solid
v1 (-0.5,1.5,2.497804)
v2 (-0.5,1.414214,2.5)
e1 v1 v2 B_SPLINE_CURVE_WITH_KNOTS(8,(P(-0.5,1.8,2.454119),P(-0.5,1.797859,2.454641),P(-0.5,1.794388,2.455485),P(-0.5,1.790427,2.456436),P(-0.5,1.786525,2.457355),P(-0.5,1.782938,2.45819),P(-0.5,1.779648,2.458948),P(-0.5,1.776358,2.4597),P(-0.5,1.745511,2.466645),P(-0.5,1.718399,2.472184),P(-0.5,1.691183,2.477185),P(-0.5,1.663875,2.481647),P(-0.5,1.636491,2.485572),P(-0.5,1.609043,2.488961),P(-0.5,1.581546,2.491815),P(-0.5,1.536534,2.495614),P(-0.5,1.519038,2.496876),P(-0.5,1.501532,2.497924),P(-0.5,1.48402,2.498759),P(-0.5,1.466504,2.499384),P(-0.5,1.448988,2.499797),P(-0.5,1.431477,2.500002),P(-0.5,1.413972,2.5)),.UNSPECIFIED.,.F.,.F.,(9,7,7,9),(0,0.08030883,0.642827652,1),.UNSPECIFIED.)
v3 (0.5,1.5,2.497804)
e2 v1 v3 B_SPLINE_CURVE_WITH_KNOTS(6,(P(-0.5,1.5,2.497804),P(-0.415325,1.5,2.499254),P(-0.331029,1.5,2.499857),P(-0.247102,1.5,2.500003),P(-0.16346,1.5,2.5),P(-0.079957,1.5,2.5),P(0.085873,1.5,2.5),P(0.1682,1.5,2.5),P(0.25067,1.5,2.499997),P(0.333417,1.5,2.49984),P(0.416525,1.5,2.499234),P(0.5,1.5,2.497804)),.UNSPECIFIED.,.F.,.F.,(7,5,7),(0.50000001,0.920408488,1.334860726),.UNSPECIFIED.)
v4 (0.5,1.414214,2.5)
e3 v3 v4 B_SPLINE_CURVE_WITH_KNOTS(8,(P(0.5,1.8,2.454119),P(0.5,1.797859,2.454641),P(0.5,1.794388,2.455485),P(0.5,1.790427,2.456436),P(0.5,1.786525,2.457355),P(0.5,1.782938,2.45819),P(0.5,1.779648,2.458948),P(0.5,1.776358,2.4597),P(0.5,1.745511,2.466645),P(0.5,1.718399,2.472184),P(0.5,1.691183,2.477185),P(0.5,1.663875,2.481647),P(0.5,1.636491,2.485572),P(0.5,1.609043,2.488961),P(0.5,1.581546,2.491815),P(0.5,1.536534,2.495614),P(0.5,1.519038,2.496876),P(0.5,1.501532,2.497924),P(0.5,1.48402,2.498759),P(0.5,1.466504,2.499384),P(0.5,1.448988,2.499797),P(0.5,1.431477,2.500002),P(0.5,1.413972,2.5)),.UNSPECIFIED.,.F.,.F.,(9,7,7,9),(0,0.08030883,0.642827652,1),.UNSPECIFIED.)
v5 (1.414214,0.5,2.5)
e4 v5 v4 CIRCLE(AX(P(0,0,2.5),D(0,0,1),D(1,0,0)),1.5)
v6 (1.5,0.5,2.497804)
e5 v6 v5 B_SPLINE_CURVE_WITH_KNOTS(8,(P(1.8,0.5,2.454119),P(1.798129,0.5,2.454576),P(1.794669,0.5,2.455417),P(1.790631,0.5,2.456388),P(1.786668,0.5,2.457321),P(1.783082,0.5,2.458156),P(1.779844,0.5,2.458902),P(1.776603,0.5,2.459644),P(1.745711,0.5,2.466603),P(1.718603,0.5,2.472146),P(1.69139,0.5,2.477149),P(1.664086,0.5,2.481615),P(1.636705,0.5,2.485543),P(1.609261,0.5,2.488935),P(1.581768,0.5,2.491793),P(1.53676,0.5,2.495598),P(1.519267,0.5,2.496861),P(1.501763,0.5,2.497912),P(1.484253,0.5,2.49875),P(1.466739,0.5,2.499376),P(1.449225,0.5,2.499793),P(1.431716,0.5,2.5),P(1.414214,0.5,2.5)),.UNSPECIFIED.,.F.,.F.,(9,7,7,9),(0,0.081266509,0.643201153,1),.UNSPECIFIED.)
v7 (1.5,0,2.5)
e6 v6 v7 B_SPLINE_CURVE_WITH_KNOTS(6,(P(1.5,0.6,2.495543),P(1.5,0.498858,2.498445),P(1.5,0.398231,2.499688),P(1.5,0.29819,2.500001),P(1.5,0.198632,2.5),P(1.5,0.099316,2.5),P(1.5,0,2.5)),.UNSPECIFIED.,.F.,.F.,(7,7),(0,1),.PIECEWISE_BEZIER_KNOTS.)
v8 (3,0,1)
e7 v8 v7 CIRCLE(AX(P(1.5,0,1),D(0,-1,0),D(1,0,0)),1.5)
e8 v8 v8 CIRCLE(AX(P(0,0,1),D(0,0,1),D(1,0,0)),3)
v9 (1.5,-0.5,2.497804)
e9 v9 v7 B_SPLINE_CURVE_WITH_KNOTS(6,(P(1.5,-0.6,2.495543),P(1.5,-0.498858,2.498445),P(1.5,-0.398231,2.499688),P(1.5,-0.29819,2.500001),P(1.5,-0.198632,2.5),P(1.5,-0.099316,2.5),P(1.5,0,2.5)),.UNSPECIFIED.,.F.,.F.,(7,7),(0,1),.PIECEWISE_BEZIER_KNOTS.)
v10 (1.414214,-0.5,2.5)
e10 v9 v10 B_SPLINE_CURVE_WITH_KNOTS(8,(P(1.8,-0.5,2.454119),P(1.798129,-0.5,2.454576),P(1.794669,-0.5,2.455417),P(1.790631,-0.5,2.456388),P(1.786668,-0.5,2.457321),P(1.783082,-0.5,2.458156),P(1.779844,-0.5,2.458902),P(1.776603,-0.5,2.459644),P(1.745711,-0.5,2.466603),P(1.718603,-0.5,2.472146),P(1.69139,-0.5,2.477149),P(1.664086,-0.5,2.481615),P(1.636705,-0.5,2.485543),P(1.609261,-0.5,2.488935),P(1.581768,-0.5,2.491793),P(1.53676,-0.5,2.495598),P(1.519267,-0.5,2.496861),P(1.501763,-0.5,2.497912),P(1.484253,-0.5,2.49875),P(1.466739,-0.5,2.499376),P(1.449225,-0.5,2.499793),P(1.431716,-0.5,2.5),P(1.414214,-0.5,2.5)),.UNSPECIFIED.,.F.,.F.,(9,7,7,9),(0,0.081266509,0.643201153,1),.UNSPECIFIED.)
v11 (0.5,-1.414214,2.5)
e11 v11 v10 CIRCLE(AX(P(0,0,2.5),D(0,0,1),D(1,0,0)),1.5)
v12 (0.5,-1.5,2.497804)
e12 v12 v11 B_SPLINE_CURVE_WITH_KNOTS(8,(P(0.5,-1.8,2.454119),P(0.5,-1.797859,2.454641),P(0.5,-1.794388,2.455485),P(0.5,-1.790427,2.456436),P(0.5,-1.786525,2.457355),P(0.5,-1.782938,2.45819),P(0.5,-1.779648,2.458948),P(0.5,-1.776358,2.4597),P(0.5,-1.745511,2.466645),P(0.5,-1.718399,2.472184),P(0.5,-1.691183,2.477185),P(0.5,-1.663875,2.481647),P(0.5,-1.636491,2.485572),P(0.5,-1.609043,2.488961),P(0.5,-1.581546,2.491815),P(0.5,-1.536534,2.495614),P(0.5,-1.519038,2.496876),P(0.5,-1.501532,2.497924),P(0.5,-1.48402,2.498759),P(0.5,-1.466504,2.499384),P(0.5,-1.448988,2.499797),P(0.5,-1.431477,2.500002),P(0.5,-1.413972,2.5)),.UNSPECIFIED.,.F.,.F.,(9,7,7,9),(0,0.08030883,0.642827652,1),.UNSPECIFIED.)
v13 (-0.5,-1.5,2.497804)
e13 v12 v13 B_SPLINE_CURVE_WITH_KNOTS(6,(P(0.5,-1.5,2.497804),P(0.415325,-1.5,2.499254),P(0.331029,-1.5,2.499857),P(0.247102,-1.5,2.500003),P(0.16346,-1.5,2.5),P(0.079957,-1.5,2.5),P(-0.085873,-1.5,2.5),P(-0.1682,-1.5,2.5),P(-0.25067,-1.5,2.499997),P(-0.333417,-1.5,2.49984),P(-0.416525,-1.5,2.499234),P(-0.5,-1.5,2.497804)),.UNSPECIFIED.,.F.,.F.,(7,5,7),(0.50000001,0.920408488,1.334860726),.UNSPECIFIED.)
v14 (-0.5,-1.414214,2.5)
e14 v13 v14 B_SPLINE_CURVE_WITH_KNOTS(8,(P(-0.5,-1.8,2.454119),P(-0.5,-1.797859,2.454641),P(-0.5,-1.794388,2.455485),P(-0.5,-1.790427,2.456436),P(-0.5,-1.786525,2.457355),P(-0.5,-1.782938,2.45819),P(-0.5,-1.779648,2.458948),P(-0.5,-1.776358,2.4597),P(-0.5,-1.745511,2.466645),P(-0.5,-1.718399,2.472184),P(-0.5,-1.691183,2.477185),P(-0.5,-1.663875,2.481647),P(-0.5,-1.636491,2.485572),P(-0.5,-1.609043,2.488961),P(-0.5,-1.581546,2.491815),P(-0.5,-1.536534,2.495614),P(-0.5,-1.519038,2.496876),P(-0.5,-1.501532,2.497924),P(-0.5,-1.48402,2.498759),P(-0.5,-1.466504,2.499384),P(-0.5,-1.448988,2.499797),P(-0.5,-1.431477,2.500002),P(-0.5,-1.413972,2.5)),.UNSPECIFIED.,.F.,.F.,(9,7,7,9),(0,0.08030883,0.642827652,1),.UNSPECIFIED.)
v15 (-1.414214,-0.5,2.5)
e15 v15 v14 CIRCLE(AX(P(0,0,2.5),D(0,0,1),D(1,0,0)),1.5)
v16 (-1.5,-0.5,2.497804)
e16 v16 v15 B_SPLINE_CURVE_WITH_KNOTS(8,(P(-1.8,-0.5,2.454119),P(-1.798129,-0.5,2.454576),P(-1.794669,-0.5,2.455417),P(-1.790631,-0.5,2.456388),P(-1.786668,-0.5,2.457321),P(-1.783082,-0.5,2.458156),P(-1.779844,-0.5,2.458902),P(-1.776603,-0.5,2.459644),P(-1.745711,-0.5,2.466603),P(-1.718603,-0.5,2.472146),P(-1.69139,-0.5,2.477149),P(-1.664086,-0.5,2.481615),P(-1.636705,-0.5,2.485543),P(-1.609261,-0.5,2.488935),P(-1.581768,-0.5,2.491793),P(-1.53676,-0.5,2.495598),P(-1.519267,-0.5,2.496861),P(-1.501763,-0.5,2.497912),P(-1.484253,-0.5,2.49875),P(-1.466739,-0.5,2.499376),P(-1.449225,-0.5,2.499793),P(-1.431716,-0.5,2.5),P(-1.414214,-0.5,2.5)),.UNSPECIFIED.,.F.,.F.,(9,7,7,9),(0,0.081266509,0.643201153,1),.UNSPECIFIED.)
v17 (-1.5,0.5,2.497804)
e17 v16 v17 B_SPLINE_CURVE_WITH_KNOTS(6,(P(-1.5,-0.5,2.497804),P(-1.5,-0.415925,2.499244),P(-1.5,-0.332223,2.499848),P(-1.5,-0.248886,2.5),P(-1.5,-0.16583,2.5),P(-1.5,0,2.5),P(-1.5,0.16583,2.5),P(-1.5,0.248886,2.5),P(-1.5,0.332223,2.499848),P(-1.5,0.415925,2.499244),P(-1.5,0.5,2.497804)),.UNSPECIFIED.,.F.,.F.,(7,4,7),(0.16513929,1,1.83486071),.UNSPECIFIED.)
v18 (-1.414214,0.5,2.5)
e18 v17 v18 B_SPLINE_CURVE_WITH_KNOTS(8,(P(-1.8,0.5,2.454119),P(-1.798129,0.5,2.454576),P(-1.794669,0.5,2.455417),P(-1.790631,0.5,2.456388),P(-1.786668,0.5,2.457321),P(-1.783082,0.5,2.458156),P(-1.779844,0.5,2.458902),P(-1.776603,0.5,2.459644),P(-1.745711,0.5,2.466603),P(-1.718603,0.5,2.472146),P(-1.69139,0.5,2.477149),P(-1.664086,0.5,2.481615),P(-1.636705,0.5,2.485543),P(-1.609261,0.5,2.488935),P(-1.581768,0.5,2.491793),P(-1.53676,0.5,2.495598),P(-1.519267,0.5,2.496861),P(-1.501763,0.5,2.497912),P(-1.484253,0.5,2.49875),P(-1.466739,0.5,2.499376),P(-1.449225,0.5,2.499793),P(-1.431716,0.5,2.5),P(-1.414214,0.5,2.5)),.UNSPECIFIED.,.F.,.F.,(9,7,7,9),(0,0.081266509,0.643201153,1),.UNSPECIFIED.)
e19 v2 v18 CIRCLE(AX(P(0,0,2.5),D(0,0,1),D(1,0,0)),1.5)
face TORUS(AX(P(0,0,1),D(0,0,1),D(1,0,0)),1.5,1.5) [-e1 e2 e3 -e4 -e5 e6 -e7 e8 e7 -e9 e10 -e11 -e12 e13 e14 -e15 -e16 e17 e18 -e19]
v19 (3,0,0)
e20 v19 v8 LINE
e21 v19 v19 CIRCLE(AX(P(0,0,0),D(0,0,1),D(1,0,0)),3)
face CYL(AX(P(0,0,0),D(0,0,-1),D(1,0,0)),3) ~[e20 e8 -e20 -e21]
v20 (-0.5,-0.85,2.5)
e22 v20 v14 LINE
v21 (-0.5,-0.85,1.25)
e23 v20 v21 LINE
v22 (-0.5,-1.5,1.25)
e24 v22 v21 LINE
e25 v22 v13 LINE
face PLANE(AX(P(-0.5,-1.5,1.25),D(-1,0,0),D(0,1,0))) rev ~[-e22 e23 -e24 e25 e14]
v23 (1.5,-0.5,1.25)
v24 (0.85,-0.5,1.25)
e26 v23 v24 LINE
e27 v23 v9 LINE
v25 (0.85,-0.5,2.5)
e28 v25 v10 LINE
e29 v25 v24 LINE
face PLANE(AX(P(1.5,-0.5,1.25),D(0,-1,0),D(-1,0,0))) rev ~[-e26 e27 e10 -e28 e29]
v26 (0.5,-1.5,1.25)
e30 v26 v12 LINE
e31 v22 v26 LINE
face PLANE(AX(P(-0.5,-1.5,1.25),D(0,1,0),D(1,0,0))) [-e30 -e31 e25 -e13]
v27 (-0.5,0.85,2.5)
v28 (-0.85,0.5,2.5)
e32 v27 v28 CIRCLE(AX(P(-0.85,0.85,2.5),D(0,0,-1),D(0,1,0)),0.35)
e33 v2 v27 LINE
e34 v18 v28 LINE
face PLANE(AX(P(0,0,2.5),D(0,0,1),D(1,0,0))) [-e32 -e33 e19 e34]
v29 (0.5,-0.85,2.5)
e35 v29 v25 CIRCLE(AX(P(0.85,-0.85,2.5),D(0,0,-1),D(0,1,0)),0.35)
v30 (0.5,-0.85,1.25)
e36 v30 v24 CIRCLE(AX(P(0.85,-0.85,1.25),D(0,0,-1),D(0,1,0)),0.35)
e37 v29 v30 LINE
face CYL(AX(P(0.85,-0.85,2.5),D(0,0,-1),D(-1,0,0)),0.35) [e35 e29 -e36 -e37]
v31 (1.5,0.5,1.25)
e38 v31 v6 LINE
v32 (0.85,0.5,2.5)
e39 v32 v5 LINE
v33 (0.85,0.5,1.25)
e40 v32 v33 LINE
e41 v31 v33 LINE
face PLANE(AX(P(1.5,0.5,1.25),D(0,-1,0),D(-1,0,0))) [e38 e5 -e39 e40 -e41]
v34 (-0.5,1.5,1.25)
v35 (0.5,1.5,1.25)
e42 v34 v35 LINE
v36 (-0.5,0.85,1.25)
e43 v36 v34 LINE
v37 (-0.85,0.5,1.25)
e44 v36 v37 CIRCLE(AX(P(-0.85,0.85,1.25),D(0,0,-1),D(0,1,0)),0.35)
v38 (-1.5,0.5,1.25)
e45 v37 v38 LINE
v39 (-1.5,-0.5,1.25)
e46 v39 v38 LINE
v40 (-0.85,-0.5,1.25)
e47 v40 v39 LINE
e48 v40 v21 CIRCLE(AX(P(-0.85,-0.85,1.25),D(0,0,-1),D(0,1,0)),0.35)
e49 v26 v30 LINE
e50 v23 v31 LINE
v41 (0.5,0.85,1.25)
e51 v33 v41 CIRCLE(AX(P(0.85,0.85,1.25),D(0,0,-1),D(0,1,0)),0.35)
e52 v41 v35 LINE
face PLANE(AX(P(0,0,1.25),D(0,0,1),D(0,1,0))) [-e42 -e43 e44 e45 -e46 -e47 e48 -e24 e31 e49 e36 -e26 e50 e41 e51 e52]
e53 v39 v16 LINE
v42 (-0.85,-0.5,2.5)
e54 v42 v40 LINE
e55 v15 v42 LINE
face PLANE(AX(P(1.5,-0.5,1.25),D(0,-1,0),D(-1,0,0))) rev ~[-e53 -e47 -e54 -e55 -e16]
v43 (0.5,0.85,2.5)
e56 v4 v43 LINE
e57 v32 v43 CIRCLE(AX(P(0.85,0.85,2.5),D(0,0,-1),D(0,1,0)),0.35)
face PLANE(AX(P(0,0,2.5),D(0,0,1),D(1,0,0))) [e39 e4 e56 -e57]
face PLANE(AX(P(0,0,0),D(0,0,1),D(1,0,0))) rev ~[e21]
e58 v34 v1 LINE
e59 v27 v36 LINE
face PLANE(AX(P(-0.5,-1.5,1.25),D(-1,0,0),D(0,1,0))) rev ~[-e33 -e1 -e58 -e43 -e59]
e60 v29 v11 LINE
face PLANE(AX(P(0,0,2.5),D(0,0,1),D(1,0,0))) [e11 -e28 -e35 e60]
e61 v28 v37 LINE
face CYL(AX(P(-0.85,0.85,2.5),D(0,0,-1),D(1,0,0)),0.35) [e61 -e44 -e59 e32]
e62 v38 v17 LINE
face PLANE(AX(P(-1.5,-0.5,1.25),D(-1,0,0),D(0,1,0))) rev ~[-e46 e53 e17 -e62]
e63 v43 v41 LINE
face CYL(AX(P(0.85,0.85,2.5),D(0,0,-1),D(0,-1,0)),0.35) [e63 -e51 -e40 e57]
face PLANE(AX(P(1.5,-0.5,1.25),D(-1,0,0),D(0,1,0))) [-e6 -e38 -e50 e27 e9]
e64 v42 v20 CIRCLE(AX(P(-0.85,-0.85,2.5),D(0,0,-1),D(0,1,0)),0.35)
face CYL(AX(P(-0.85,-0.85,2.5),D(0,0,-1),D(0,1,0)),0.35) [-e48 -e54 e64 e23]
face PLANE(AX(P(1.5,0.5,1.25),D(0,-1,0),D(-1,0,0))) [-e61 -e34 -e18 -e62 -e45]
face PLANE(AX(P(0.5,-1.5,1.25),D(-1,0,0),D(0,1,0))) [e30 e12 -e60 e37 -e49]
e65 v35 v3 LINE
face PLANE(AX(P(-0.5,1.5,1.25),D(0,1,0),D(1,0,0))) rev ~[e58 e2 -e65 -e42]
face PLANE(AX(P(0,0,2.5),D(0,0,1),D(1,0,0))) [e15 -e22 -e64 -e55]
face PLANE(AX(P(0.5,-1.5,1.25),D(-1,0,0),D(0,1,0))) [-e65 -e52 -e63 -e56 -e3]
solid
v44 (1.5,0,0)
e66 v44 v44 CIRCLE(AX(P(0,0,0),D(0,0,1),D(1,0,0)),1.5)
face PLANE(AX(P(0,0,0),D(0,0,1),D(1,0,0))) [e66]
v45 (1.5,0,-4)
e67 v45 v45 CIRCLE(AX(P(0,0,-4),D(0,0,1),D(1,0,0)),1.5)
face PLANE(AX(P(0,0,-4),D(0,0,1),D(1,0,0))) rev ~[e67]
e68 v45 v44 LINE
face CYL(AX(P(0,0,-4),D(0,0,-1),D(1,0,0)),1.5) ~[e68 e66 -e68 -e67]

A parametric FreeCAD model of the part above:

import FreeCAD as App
import Part
import Sketcher
from FreeCAD import Vector


def edges_at(feature, points):
    """Names of the edges that pass closest to the given points."""
    edges = feature.Shape.Edges
    near = lambda p: min(range(len(edges)), key=lambda i: edges[i].distToShape(Part.Vertex(*p))[0])
    return sorted({f"Edge{near(p) + 1}" for p in points})

doc = App.newDocument("Part")
params = doc.addObject("Spreadsheet::Sheet", "Params")
for row, (alias, value) in enumerate([
    ("sketch1_width", "1 mm"),
    ("sketch1_height", "3 mm"),
    ("pad1_length", "1.5 mm"),
    ("sketch2_width", "3 mm"),
    ("sketch2_height", "1 mm"),
    ("pad2_length", "1.5 mm"),
    ("sketch3_diameter", "6 mm"),
    ("pad3_length", "2.5 mm"),
    ("fillet_radius", "1.5 mm"),
    ("fillet2_radius", "0.35 mm"),
    ("sketch4_diameter", "3 mm"),
    ("pad4_length", "4 mm"),
], start=1):
    params.set(f"A{row}", alias)
    params.set(f"B{row}", "=" + value)
    params.setAlias(f"B{row}", alias)

body = doc.addObject("PartDesign::Body", "Body")

sketch1 = doc.addObject("Sketcher::SketchObject", "Sketch")
body.addObject(sketch1)
sketch1.AttachmentSupport = (doc.XY_Plane, [""])
sketch1.MapMode = "FlatFace"
sketch1.AttachmentOffset = App.Placement(Vector(0, 0, 1.25), App.Rotation())
sketch1.addGeometry([
    Part.LineSegment(Vector(-0.5, 1.5, 0), Vector(-0.5, -1.5, 0)),
    Part.LineSegment(Vector(-0.5, -1.5, 0), Vector(0.5, -1.5, 0)),
    Part.LineSegment(Vector(0.5, -1.5, 0), Vector(0.5, 1.5, 0)),
    Part.LineSegment(Vector(0.5, 1.5, 0), Vector(-0.5, 1.5, 0)),
], False)
sketch1.addConstraint([
    Sketcher.Constraint("Coincident", 0, 2, 1, 1),
    Sketcher.Constraint("Coincident", 1, 2, 2, 1),
    Sketcher.Constraint("Coincident", 2, 2, 3, 1),
    Sketcher.Constraint("Coincident", 3, 2, 0, 1),
    Sketcher.Constraint("Vertical", 0),
    Sketcher.Constraint("Horizontal", 1),
    Sketcher.Constraint("Vertical", 2),
    Sketcher.Constraint("Horizontal", 3),
    Sketcher.Constraint("Symmetric", 0, 2, 2, 2, -1, 1),
    Sketcher.Constraint("DistanceX", 1, 1, 1, 2, 1.0),
    Sketcher.Constraint("DistanceY", 0, 2, 0, 1, 3.0),
])
sketch1.setExpression("Constraints[9]", "Params.sketch1_width")
sketch1.setExpression("Constraints[10]", "Params.sketch1_height")
pad1 = doc.addObject("PartDesign::Pad", "Pad")
body.addObject(pad1)
pad1.Profile = sketch1
pad1.setExpression("Length", "Params.pad1_length")
body2 = doc.addObject("PartDesign::Body", "Body001")

sketch2 = doc.addObject("Sketcher::SketchObject", "Sketch001")
body2.addObject(sketch2)
sketch2.AttachmentSupport = (doc.getObject("XY_Plane001"), [""])
sketch2.MapMode = "FlatFace"
sketch2.AttachmentOffset = App.Placement(Vector(0, 0, 1.25), App.Rotation())
sketch2.addGeometry([
    Part.LineSegment(Vector(-1.5, -0.5, 0), Vector(1.5, -0.5, 0)),
    Part.LineSegment(Vector(1.5, -0.5, 0), Vector(1.5, 0.5, 0)),
    Part.LineSegment(Vector(1.5, 0.5, 0), Vector(-1.5, 0.5, 0)),
    Part.LineSegment(Vector(-1.5, 0.5, 0), Vector(-1.5, -0.5, 0)),
], False)
sketch2.addConstraint([
    Sketcher.Constraint("Coincident", 0, 2, 1, 1),
    Sketcher.Constraint("Coincident", 1, 2, 2, 1),
    Sketcher.Constraint("Coincident", 2, 2, 3, 1),
    Sketcher.Constraint("Coincident", 3, 2, 0, 1),
    Sketcher.Constraint("Horizontal", 0),
    Sketcher.Constraint("Vertical", 1),
    Sketcher.Constraint("Horizontal", 2),
    Sketcher.Constraint("Vertical", 3),
    Sketcher.Constraint("Symmetric", 0, 2, 2, 2, -1, 1),
    Sketcher.Constraint("DistanceX", 0, 1, 0, 2, 3.0),
    Sketcher.Constraint("DistanceY", 1, 1, 1, 2, 1.0),
])
sketch2.setExpression("Constraints[9]", "Params.sketch2_width")
sketch2.setExpression("Constraints[10]", "Params.sketch2_height")
pad2 = doc.addObject("PartDesign::Pad", "Pad001")
body2.addObject(pad2)
pad2.Profile = sketch2
pad2.setExpression("Length", "Params.pad2_length")
body3 = doc.addObject("PartDesign::Body", "Body002")

sketch3 = doc.addObject("Sketcher::SketchObject", "Sketch002")
body3.addObject(sketch3)
sketch3.AttachmentSupport = (doc.getObject("XY_Plane002"), [""])
sketch3.MapMode = "FlatFace"
sketch3.addGeometry(Part.Circle(Vector(0, 0, 0), Vector(0, 0, 1), 3), False)
sketch3.addConstraint([
    Sketcher.Constraint("Coincident", 0, 3, -1, 1),
    Sketcher.Constraint("Diameter", 0, 6.0),
])
sketch3.setExpression("Constraints[1]", "Params.sketch3_diameter")
pad3 = doc.addObject("PartDesign::Pad", "Pad002")
body3.addObject(pad3)
pad3.Profile = sketch3
pad3.setExpression("Length", "Params.pad3_length")
doc.recompute()

fillet = doc.addObject("PartDesign::Fillet", "Fillet")
body3.addObject(fillet)
fillet.Base = (pad3, edges_at(pad3, [(-3, 0, 2.5)]))
fillet.setExpression("Radius", "Params.fillet_radius")
doc.recompute()

boolean = doc.addObject("PartDesign::Boolean", "Boolean")
body3.addObject(boolean)
boolean.Type = "Cut"
boolean.addObjects([body2])
doc.recompute()

boolean2 = doc.addObject("PartDesign::Boolean", "Boolean001")
body3.addObject(boolean2)
boolean2.Type = "Cut"
boolean2.addObjects([body])
doc.recompute()

fillet2 = doc.addObject("PartDesign::Fillet", "Fillet001")
body3.addObject(fillet2)
fillet2.Base = (boolean2, edges_at(boolean2, [
    (0.5, 0.5, 1.875),
    (-0.5, 0.5, 1.875),
    (-0.5, -0.5, 1.875),
    (0.5, -0.5, 1.875),
]))
fillet2.setExpression("Radius", "Params.fillet2_radius")
body4 = doc.addObject("PartDesign::Body", "Body003")

sketch4 = doc.addObject("Sketcher::SketchObject", "Sketch003")
body4.addObject(sketch4)
sketch4.AttachmentSupport = (doc.getObject("XY_Plane003"), [""])
sketch4.MapMode = "FlatFace"
sketch4.AttachmentOffset = App.Placement(Vector(0, 0, -4), App.Rotation())
sketch4.addGeometry(Part.Circle(Vector(0, 0, 0), Vector(0, 0, 1), 1.5), False)
sketch4.addConstraint([
    Sketcher.Constraint("Coincident", 0, 3, -1, 1),
    Sketcher.Constraint("Diameter", 0, 3.0),
])
sketch4.setExpression("Constraints[1]", "Params.sketch4_diameter")
pad4 = doc.addObject("PartDesign::Pad", "Pad003")
body4.addObject(pad4)
pad4.Profile = sketch4
pad4.setExpression("Length", "Params.pad4_length")

doc.recompute()
